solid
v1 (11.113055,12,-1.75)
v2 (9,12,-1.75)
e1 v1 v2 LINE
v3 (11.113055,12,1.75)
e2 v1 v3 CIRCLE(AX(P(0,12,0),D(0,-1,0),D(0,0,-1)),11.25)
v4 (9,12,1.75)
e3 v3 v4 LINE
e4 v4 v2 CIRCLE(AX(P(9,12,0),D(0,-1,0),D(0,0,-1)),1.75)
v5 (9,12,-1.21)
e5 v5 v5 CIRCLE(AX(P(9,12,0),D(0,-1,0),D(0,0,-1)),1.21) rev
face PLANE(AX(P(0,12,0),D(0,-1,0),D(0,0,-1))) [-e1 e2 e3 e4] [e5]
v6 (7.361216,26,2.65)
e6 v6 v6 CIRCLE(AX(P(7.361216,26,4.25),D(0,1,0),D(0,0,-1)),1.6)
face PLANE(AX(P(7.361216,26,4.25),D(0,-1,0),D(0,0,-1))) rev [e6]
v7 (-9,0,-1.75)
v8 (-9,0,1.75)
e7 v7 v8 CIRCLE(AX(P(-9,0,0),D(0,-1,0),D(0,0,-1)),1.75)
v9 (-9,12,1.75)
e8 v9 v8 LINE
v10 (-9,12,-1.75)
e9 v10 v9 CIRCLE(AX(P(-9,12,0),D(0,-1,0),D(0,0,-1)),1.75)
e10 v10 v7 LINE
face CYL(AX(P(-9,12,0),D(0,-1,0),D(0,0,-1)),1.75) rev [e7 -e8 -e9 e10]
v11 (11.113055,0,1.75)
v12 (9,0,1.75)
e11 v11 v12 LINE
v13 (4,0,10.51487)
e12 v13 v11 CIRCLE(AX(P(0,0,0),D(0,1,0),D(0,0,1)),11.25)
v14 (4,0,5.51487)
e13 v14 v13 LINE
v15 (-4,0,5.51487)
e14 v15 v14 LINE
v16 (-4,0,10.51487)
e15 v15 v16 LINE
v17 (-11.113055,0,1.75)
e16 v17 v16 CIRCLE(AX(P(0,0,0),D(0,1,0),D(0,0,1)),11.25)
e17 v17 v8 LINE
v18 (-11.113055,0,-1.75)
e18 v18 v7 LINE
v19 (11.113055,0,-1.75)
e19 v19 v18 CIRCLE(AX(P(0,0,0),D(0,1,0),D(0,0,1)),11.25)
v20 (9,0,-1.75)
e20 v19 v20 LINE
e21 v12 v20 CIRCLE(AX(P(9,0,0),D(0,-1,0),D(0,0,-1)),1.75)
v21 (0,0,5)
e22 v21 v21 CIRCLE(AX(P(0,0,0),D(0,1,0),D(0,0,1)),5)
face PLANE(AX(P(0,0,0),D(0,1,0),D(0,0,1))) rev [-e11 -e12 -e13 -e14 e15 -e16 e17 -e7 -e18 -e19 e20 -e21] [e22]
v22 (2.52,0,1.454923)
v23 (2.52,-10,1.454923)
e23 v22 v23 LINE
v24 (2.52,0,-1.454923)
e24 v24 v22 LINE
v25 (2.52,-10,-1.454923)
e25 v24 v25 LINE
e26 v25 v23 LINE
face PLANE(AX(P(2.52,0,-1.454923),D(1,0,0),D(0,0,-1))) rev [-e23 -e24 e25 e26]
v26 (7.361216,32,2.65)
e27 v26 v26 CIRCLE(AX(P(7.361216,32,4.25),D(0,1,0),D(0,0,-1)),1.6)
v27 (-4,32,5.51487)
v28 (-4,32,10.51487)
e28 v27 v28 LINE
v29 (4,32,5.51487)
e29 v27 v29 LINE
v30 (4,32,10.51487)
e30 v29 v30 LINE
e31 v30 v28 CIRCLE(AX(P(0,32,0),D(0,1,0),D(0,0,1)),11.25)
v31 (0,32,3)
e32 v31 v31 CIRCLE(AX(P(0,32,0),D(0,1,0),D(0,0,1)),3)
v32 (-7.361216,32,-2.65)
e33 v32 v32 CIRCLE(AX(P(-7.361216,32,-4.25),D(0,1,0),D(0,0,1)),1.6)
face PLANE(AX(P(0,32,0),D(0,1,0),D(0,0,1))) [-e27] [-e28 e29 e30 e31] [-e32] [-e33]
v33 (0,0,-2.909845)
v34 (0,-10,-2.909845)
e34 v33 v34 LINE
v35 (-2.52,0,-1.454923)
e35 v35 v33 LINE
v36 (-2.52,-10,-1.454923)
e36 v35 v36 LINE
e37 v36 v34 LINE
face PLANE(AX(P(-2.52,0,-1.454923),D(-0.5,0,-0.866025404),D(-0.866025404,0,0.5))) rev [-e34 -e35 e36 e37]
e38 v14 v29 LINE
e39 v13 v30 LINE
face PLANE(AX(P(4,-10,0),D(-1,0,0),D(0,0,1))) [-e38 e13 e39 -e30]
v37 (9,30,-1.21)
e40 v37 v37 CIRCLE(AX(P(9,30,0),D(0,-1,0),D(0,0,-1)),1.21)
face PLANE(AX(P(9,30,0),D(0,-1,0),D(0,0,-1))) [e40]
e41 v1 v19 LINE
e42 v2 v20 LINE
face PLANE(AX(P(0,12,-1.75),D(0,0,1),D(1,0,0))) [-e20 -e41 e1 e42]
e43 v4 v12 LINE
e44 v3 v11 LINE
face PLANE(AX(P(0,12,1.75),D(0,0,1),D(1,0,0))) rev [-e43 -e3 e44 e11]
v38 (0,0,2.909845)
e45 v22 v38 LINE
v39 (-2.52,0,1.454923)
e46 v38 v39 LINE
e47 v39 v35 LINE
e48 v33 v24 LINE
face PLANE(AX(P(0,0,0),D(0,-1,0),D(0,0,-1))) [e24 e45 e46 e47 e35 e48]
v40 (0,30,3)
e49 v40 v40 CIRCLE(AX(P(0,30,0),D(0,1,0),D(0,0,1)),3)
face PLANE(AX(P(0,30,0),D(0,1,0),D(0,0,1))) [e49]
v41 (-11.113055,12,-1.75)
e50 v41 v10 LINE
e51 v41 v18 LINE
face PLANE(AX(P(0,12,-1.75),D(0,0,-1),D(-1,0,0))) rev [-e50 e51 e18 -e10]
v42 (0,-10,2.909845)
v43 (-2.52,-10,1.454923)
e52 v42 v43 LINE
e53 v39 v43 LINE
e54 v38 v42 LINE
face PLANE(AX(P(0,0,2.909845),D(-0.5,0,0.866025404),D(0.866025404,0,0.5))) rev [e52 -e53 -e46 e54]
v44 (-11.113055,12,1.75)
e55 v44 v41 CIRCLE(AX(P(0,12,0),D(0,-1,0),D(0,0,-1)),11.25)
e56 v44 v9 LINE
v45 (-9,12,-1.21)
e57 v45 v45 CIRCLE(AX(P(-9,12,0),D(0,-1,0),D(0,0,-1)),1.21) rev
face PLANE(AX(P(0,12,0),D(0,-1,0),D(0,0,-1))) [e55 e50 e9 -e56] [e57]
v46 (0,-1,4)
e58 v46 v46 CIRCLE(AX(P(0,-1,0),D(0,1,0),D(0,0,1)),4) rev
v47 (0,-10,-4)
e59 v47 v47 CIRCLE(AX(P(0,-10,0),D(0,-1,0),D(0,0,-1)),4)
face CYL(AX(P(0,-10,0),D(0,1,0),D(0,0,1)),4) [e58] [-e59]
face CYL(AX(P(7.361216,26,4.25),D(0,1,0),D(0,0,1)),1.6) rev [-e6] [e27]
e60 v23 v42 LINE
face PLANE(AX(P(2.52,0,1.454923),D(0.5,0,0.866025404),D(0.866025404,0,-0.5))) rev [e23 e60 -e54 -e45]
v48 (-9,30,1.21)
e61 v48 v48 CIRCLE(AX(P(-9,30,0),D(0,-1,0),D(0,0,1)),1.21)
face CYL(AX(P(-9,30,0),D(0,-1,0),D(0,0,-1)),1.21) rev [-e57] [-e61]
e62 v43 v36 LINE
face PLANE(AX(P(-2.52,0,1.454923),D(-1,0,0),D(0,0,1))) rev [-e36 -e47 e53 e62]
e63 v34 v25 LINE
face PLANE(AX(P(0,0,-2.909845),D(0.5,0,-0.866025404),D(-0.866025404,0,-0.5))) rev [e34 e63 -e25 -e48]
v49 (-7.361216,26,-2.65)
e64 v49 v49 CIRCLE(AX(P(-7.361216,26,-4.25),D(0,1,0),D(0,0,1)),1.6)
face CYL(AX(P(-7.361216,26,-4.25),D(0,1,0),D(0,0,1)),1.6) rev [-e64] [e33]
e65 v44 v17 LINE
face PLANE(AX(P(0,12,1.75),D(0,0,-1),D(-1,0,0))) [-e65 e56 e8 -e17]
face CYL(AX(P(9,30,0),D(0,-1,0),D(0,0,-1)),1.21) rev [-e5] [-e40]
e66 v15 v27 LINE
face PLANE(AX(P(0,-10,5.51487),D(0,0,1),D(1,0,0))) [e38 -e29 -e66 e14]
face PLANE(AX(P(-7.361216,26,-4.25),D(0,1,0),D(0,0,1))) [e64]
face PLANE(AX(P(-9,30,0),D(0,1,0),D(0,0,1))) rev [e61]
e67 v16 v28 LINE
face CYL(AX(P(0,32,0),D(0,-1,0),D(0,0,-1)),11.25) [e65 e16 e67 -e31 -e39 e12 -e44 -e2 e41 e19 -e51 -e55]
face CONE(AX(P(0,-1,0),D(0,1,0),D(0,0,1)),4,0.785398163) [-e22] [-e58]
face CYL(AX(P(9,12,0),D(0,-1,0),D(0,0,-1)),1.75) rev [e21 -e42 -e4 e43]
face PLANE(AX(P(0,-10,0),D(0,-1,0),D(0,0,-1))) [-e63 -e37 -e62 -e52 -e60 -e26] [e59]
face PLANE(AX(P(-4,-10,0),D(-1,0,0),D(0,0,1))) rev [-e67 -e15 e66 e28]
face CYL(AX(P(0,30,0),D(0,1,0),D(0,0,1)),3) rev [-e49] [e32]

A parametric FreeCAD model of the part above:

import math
import FreeCAD as App
import Part
import Sketcher

V = App.Vector
Q = App.Units.Quantity


def edges_at(feature, points):
    """Names of the edges that pass closest to the given points."""
    edges = feature.Shape.Edges
    near = lambda p: min(range(len(edges)), key=lambda i: edges[i].distToShape(Part.Vertex(*p))[0])
    return sorted({f"Edge{near(p) + 1}" for p in points})


def add_polygon(sketch, points):
    """Adds a closed chain of lines whose ends are joined by coincident constraints."""
    first, n = sketch.GeometryCount, len(points)
    for a, b in zip(points, points[1:] + points[:1]):
        sketch.addGeometry(Part.LineSegment(App.Vector(*a, 0), App.Vector(*b, 0)), False)
    for i in range(n):
        sketch.addConstraint(Sketcher.Constraint("Coincident", first + i, 2, first + (i + 1) % n, 1))

doc = App.newDocument("Part")
params = doc.addObject("Spreadsheet::Sheet", "Params")
for row, (alias, value) in enumerate([
    ("sketch1_diameter", "22.5 mm"),
    ("pad1_length", "32 mm"),
    ("sketch2_diameter", "2.42 mm"),
    ("pocket1_length", "30 mm"),
    ("sketch3_diameter", "8 mm"),
    ("pad2_length", "10 mm"),
    ("pocket2_length", "10 mm"),
    ("chamfer_size", "1 mm"),
    ("sketch5_width", "8 mm"),
    ("sketch5_height", "5 mm"),
    ("sketch5_radius", "11.25 mm"),
    ("sketch6_diameter", "3.2 mm"),
    ("pocket4_length", "6 mm"),
    ("sketch7_diameter", "6 mm"),
    ("pocket5_length", "2 mm"),
    ("sketch8_radius", "1.75 mm"),
    ("sketch8_radius2", "11.25 mm"),
    ("sketch8_radius3", "1.21 mm"),
    ("pocket6_length", "12 mm"),
], start=1):
    params.set(f"A{row}", alias)
    params.set(f"B{row}", "=" + value)
    params.setAlias(f"B{row}", alias)

body = doc.addObject("PartDesign::Body", "Body")

# Sketch on XZ plane
sketch1 = body.newObject("Sketcher::SketchObject", "Sketch")
sketch1.AttachmentSupport = (doc.getObject("XZ_Plane"), [""])
sketch1.MapMode = "FlatFace"
sketch1.addGeometry(Part.Circle(V(0, 0, 0), V(0, 0, 1), 11), False)
sketch1.addConstraint([
    Sketcher.Constraint("Coincident", 0, 3, -1, 1),
    Sketcher.Constraint("Diameter", 0, 22.5),
])
sketch1.setExpression("Constraints[1]", "Params.sketch1_diameter")
pad1 = body.newObject("PartDesign::Pad", "Pad")
pad1.Profile = sketch1
pad1.setExpression("Length", "Params.pad1_length")
pad1.Reversed = True

# Sketch on XZ plane
sketch2 = body.newObject("Sketcher::SketchObject", "Sketch001")
sketch2.AttachmentSupport = (doc.getObject("XZ_Plane"), [""])
sketch2.MapMode = "FlatFace"
sketch2.addGeometry([
    Part.Circle(V(9, 0, 0), V(0, 0, 1), 1.2),
    Part.Circle(V(-9, 0, 0), V(0, 0, 1), 1.2),
], False)
sketch2.addConstraint([
    Sketcher.Constraint("Equal", 0, 1),
    Sketcher.Constraint("Symmetric", 0, 3, 1, 3, -1, 1),
    Sketcher.Constraint("PointOnObject", 0, 3, -1),
    Sketcher.Constraint("Diameter", 0, 2.42),
    Sketcher.Constraint("DistanceX", -1, 1, 0, 3, 9.0),
])
sketch2.setExpression("Constraints[3]", "Params.sketch2_diameter")
pocket1 = body.newObject("PartDesign::Pocket", "Pocket")
pocket1.Profile = sketch2
pocket1.setExpression("Length", "Params.pocket1_length")

# Sketch on XZ plane
sketch3 = body.newObject("Sketcher::SketchObject", "Sketch002")
sketch3.AttachmentSupport = (doc.getObject("XZ_Plane"), [""])
sketch3.MapMode = "FlatFace"
sketch3.addGeometry(Part.Circle(V(0, 0, 0), V(0, 0, 1), 4), False)
sketch3.addConstraint([
    Sketcher.Constraint("Coincident", 0, 3, -1, 1),
    Sketcher.Constraint("Diameter", 0, 8.0),
])
sketch3.setExpression("Constraints[1]", "Params.sketch3_diameter")
pad2 = body.newObject("PartDesign::Pad", "Pad001")
pad2.Profile = sketch3
pad2.setExpression("Length", "Params.pad2_length")

# Sketch on XZ plane
sketch4 = body.newObject("Sketcher::SketchObject", "Sketch003")
sketch4.AttachmentSupport = (doc.getObject("XZ_Plane"), [""])
sketch4.MapMode = "FlatFace"
sketch4.AttachmentOffset = App.Placement(V(0, 0, 10), App.Rotation())
add_polygon(sketch4, [(0, -2.9), (2.5, -1.5), (2.5, 1.5), (0, 2.9), (-2.5, 1.5), (-2.5, -1.5)])  # lines 0-5
sketch4.addConstraint([
    Sketcher.Constraint("Vertical", 1),
    Sketcher.Constraint("Vertical", 4),
    Sketcher.Constraint("Symmetric", 0, 2, 3, 2, -1, 1),
    Sketcher.Constraint("Symmetric", 2, 2, 5, 2, -1, 1),
    Sketcher.Constraint("PointOnObject", 2, 2, -2),
    Sketcher.Constraint("Parallel", 2, 5),
    Sketcher.Constraint("Horizontal", 1, 2, 3, 2),
    Sketcher.Constraint("Angle", 0, Q("30 deg")),
    Sketcher.Constraint("DistanceX", -1, 1, 0, 2, 2.52),
    Sketcher.Constraint("DistanceY", 1, 1, 1, 2, 2.909845),
])
pocket2 = body.newObject("PartDesign::Pocket", "Pocket001")
pocket2.Profile = sketch4
pocket2.setExpression("Length", "Params.pocket2_length")
doc.recompute()

chamfer = body.newObject("PartDesign::Chamfer", "Chamfer")
chamfer.Base = (pocket2, edges_at(pocket2, [(0, 0, -4)]))
chamfer.setExpression("Size", "Params.chamfer_size")

# Sketch on XZ plane
sketch5 = body.newObject("Sketcher::SketchObject", "Sketch004")
sketch5.AttachmentSupport = (doc.getObject("XZ_Plane"), [""])
sketch5.MapMode = "FlatFace"
sketch5.AttachmentOffset = App.Placement(V(0, 0, -32), App.Rotation())
sketch5.addGeometry([
    Part.LineSegment(V(-4, 5.5, 0), V(-4, 10.5, 0)),
    Part.ArcOfCircle(Part.Circle(V(0, 0, 0), V(0, 0, 1), 11.2), math.radians(69), math.radians(111)),
    Part.LineSegment(V(4, 10.5, 0), V(4, 5.5, 0)),
    Part.LineSegment(V(4, 5.5, 0), V(-4, 5.5, 0)),
], False)
sketch5.addConstraint([
    Sketcher.Constraint("Coincident", 0, 2, 1, 2),
    Sketcher.Constraint("Coincident", 1, 1, 2, 1),
    Sketcher.Constraint("Coincident", 2, 2, 3, 1),
    Sketcher.Constraint("Coincident", 3, 2, 0, 1),
    Sketcher.Constraint("Vertical", 0),
    Sketcher.Constraint("Vertical", 2),
    Sketcher.Constraint("Horizontal", 3),
    Sketcher.Constraint("Coincident", 1, 3, -1, 1),
    Sketcher.Constraint("Horizontal", 0, 2, 1, 1),
    Sketcher.Constraint("DistanceX", 3, 2, 3, 1, 8.0),
    Sketcher.Constraint("DistanceY", 0, 1, 0, 2, 5.0),
    Sketcher.Constraint("Radius", 1, 11.25),
])
sketch5.setExpression("Constraints[9]", "Params.sketch5_width")
sketch5.setExpression("Constraints[10]", "Params.sketch5_height")
sketch5.setExpression("Constraints[11]", "Params.sketch5_radius")
pocket3 = body.newObject("PartDesign::Pocket", "Pocket002")
pocket3.Profile = sketch5
pocket3.Type = "ThroughAll"
pocket3.Reversed = True

# Sketch on XZ plane
sketch6 = body.newObject("Sketcher::SketchObject", "Sketch005")
sketch6.AttachmentSupport = (doc.getObject("XZ_Plane"), [""])
sketch6.MapMode = "FlatFace"
sketch6.AttachmentOffset = App.Placement(V(0, 0, -32), App.Rotation())
sketch6.addGeometry([
    Part.Circle(V(-7.4, -4.2, 0), V(0, 0, 1), 1.6),
    Part.Circle(V(7.4, 4.2, 0), V(0, 0, 1), 1.6),
], False)
sketch6.addConstraint([
    Sketcher.Constraint("Equal", 0, 1),
    Sketcher.Constraint("Symmetric", 0, 3, 1, 3, -1, 1),
    Sketcher.Constraint("Diameter", 0, 3.2),
    Sketcher.Constraint("DistanceY", 0, 3, 1, 3, 8.5),
    Sketcher.Constraint("DistanceX", 0, 3, 1, 3, 14.722432),
])
sketch6.setExpression("Constraints[2]", "Params.sketch6_diameter")
pocket4 = body.newObject("PartDesign::Pocket", "Pocket003")
pocket4.Profile = sketch6
pocket4.setExpression("Length", "Params.pocket4_length")
pocket4.Reversed = True

# Sketch on XZ plane
sketch7 = body.newObject("Sketcher::SketchObject", "Sketch006")
sketch7.AttachmentSupport = (doc.getObject("XZ_Plane"), [""])
sketch7.MapMode = "FlatFace"
sketch7.AttachmentOffset = App.Placement(V(0, 0, -32), App.Rotation())
sketch7.addGeometry(Part.Circle(V(0, 0, 0), V(0, 0, 1), 3), False)
sketch7.addConstraint([
    Sketcher.Constraint("Coincident", 0, 3, -1, 1),
    Sketcher.Constraint("Diameter", 0, 6.0),
])
sketch7.setExpression("Constraints[1]", "Params.sketch7_diameter")
pocket5 = body.newObject("PartDesign::Pocket", "Pocket004")
pocket5.Profile = sketch7
pocket5.setExpression("Length", "Params.pocket5_length")
pocket5.Reversed = True

# Sketch on XZ plane
sketch8 = body.newObject("Sketcher::SketchObject", "Sketch007")
sketch8.AttachmentSupport = (doc.getObject("XZ_Plane"), [""])
sketch8.MapMode = "FlatFace"
sketch8.addGeometry([
    Part.LineSegment(V(-11.1, -1.8, 0), V(-9, -1.8, 0)),  # 0
    Part.ArcOfCircle(Part.Circle(V(-9, 0, 0), V(0, 0, 1), 1.8), math.radians(-90), math.radians(0)),  # 1
    Part.ArcOfCircle(Part.Circle(V(-9, 0, 0), V(0, 0, 1), 1.8), math.radians(0), math.radians(90)),  # 2
    Part.LineSegment(V(-9, 1.8, 0), V(-11.1, 1.8, 0)),  # 3
    Part.ArcOfCircle(Part.Circle(V(0, 0, 0), V(0, 0, 1), 11.2), math.radians(171.05), math.radians(188.95)),  # 4
    Part.ArcOfCircle(Part.Circle(V(-9, 0, 0), V(0, 0, 1), 1.2), math.radians(90), math.radians(270)),  # 5
    Part.ArcOfCircle(Part.Circle(V(-9, 0, 0), V(0, 0, 1), 1.2), math.radians(0), math.radians(90)),  # 6
    Part.ArcOfCircle(Part.Circle(V(-9, 0, 0), V(0, 0, 1), 1.2), math.radians(-90), math.radians(0)),  # 7
    Part.ArcOfCircle(Part.Circle(V(9, 0, 0), V(0, 0, 1), 1.8), math.radians(90), math.radians(270)),  # 8
    Part.LineSegment(V(9, -1.8, 0), V(11.1, -1.8, 0)),  # 9
    Part.ArcOfCircle(Part.Circle(V(0, 0, 0), V(0, 0, 1), 11.2), math.radians(-8.95), math.radians(8.95)),  # 10
    Part.LineSegment(V(11.1, 1.8, 0), V(9, 1.8, 0)),  # 11
    Part.ArcOfCircle(Part.Circle(V(9, 0, 0), V(0, 0, 1), 1.2), math.radians(90), math.radians(270)),  # 12
    Part.ArcOfCircle(Part.Circle(V(9, 0, 0), V(0, 0, 1), 1.2), math.radians(0), math.radians(90)),  # 13
    Part.ArcOfCircle(Part.Circle(V(9, 0, 0), V(0, 0, 1), 1.2), math.radians(-90), math.radians(0)),  # 14
], False)
sketch8.addConstraint([
    Sketcher.Constraint("Tangent", 0, 2, 1, 1),
    Sketcher.Constraint("Tangent", 1, 2, 2, 1),
    Sketcher.Constraint("Tangent", 2, 2, 3, 1),
    Sketcher.Constraint("Coincident", 3, 2, 4, 1),
    Sketcher.Constraint("Coincident", 4, 2, 0, 1),
    Sketcher.Constraint("Tangent", 5, 1, 6, 2),
    Sketcher.Constraint("Tangent", 6, 1, 7, 2),
    Sketcher.Constraint("Tangent", 7, 1, 5, 2),
    Sketcher.Constraint("Tangent", 8, 2, 9, 1),
    Sketcher.Constraint("Coincident", 9, 2, 10, 1),
    Sketcher.Constraint("Coincident", 10, 2, 11, 1),
    Sketcher.Constraint("Tangent", 11, 2, 8, 1),
    Sketcher.Constraint("Tangent", 12, 1, 13, 2),
    Sketcher.Constraint("Tangent", 13, 1, 14, 2),
    Sketcher.Constraint("Tangent", 14, 1, 12, 2),
    Sketcher.Constraint("Horizontal", 0),
    Sketcher.Constraint("Horizontal", 3),
    Sketcher.Constraint("Horizontal", 9),
    Sketcher.Constraint("Horizontal", 11),
    Sketcher.Constraint("Coincident", 4, 3, -1, 1),
    Sketcher.Constraint("Coincident", 10, 3, -1, 1),
    Sketcher.Constraint("Coincident", 5, 3, 1, 3),
    Sketcher.Constraint("Coincident", 12, 3, 8, 3),
    Sketcher.Constraint("Equal", 1, 2),
    Sketcher.Constraint("Equal", 2, 8),
    Sketcher.Constraint("Equal", 4, 10),
    Sketcher.Constraint("Equal", 7, 12),
    Sketcher.Constraint("Symmetric", 1, 3, 8, 3, -1, 1),
    Sketcher.Constraint("Symmetric", 5, 1, 12, 1, -2),
    Sketcher.Constraint("PointOnObject", 1, 2, -1),
    Sketcher.Constraint("PointOnObject", 6, 1, -1),
    Sketcher.Constraint("PointOnObject", 13, 1, -1),
    Sketcher.Constraint("Vertical", 2, 2, 5, 1),
    Sketcher.Constraint("Vertical", 5, 1, 7, 1),
    Sketcher.Constraint("Vertical", 12, 1, 14, 1),
    Sketcher.Constraint("Radius", 1, 1.75),
    Sketcher.Constraint("Radius", 4, 11.25),
    Sketcher.Constraint("Radius", 5, 1.21),
    Sketcher.Constraint("DistanceX", 1, 3, -1, 1, 9.0),
])
sketch8.setExpression("Constraints[35]", "Params.sketch8_radius")
sketch8.setExpression("Constraints[36]", "Params.sketch8_radius2")
sketch8.setExpression("Constraints[37]", "Params.sketch8_radius3")
pocket6 = body.newObject("PartDesign::Pocket", "Pocket005")
pocket6.Profile = sketch8
pocket6.setExpression("Length", "Params.pocket6_length")

doc.recompute()
